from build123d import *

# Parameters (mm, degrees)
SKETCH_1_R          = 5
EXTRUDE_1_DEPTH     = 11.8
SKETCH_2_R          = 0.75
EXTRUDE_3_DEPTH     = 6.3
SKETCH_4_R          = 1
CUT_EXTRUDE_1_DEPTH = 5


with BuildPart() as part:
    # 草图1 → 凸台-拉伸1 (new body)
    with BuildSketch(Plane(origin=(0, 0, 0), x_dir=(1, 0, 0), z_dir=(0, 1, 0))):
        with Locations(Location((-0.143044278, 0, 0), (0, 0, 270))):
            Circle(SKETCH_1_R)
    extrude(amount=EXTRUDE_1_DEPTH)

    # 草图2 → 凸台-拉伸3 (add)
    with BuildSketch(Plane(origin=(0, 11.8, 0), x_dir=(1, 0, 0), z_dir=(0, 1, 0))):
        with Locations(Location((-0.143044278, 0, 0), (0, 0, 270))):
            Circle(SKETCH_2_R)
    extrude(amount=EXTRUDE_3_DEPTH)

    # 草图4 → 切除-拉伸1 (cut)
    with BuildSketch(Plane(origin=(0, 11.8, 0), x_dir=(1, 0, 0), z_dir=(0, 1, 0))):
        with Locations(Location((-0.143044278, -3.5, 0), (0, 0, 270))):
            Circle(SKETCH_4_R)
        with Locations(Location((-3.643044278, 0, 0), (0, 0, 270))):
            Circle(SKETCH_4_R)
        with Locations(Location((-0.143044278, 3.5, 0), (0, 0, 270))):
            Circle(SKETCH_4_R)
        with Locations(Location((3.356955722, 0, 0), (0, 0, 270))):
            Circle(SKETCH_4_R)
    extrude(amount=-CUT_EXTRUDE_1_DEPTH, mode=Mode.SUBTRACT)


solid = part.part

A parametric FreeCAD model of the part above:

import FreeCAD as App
import Part
import Sketcher

doc = App.newDocument("Part")
body = doc.addObject("PartDesign::Body", "Body")

sketch1 = body.newObject("Sketcher::SketchObject", "Sketch")
sketch1.AttachmentSupport = (doc.getObject("XZ_Plane"), [""])
sketch1.MapMode = "FlatFace"
sketch1.addGeometry(Part.Circle(App.Vector(0, 0, 0), App.Vector(0, 0, 1), 5), False)
sketch1.addConstraint([
    Sketcher.Constraint("PointOnObject", 0, 3, -1),
    Sketcher.Constraint("Diameter", 0, 10.0),
    Sketcher.Constraint("DistanceX", 0, 3, -1, 1, 0.143044),
])
pad1 = body.newObject("PartDesign::Pad", "Pad")
pad1.Profile = sketch1
pad1.Length = 11.8
pad1.Reversed = True

sketch2 = body.newObject("Sketcher::SketchObject", "Sketch001")
sketch2.AttachmentSupport = (doc.getObject("XZ_Plane"), [""])
sketch2.MapMode = "FlatFace"
sketch2.AttachmentOffset = App.Placement(App.Vector(0, 0, -11.8), App.Rotation())
sketch2.addGeometry(Part.Circle(App.Vector(-0.1, 0, 0), App.Vector(0, 0, 1), 0.8), False)
sketch2.addConstraint([
    Sketcher.Constraint("PointOnObject", 0, 3, -1),
    Sketcher.Constraint("Diameter", 0, 1.5),
    Sketcher.Constraint("DistanceX", 0, 3, -1, 1, 0.143044),
])
pad2 = body.newObject("PartDesign::Pad", "Pad001")
pad2.Profile = sketch2
pad2.Length = 6.3
pad2.Reversed = True

sketch3 = body.newObject("Sketcher::SketchObject", "Sketch002")
sketch3.AttachmentSupport = (doc.getObject("XZ_Plane"), [""])
sketch3.MapMode = "FlatFace"
sketch3.AttachmentOffset = App.Placement(App.Vector(0, 0, -11.8), App.Rotation())
sketch3.addGeometry([
    Part.Circle(App.Vector(-0.1, 3.5, 0), App.Vector(0, 0, 1), 1),
    Part.Circle(App.Vector(-3.6, 0, 0), App.Vector(0, 0, 1), 1),
    Part.Circle(App.Vector(-0.1, -3.5, 0), App.Vector(0, 0, 1), 1),
    Part.Circle(App.Vector(3.4, 0, 0), App.Vector(0, 0, 1), 1),
], False)
sketch3.addConstraint([
    Sketcher.Constraint("Equal", 0, 1),
    Sketcher.Constraint("Equal", 1, 2),
    Sketcher.Constraint("Equal", 2, 3),
    Sketcher.Constraint("Symmetric", 0, 3, 2, 3, -1),
    Sketcher.Constraint("PointOnObject", 1, 3, -1),
    Sketcher.Constraint("PointOnObject", 3, 3, -1),
    Sketcher.Constraint("Diameter", 0, 2.0),
    Sketcher.Constraint("DistanceY", 2, 3, 0, 3, 7.0),
    Sketcher.Constraint("DistanceX", 1, 3, 3, 3, 7.0),
    Sketcher.Constraint("DistanceX", 1, 3, 0, 3, 3.5),
    Sketcher.Constraint("DistanceX", 0, 3, -1, 1, 0.143044),
])
pocket1 = body.newObject("PartDesign::Pocket", "Pocket")
pocket1.Profile = sketch3
pocket1.Length = 5
pocket1.Reversed = True

doc.recompute()
